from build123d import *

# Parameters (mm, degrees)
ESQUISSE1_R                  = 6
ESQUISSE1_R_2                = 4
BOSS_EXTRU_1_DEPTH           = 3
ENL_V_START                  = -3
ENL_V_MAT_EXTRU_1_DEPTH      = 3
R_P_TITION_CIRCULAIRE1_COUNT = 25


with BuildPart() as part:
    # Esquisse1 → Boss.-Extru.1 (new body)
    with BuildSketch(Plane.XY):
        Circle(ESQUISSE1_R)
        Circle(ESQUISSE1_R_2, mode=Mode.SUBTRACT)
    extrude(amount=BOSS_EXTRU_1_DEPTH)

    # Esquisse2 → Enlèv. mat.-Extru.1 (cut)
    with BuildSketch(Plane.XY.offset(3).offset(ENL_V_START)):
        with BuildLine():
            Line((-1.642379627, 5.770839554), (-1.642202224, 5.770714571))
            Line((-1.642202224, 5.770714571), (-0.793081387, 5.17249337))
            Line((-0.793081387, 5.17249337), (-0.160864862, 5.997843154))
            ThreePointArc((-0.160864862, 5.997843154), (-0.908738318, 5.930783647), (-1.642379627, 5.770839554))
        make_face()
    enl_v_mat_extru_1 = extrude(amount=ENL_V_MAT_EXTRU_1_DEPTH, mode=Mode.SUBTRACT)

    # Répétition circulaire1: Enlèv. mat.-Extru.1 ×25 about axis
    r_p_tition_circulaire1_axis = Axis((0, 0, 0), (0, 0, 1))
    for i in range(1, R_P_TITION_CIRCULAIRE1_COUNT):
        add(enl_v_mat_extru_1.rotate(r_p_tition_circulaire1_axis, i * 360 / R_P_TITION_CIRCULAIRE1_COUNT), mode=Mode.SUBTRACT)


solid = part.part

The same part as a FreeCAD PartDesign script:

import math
import FreeCAD as App
import Part
import Sketcher
from FreeCAD import Vector
Q = App.Units.Quantity

doc = App.newDocument("Part")
body = doc.addObject("PartDesign::Body", "Body")

# Sketch on XY plane
sketch1 = body.newObject("Sketcher::SketchObject", "Sketch")
sketch1.AttachmentSupport = (doc.getObject("XY_Plane"), [""])
sketch1.MapMode = "FlatFace"
sketch1.addGeometry(Part.Circle(Vector(0, 0, 0), Vector(0, 0, 1), 6), False)
sketch1.addGeometry(Part.Circle(Vector(0, 0, 0), Vector(0, 0, 1), 4), False)
sketch1.addConstraint(Sketcher.Constraint("Coincident", 0, 3, -1, 1))
sketch1.addConstraint(Sketcher.Constraint("Coincident", 1, 3, -1, 1))
sketch1.addConstraint(Sketcher.Constraint("Diameter", 0, Q("12 mm")))
sketch1.addConstraint(Sketcher.Constraint("Diameter", 1, Q("8 mm")))
pad1 = body.newObject("PartDesign::Pad", "Pad")
pad1.Profile = sketch1
pad1.Length = 3

# Sketch on XY plane
sketch2 = body.newObject("Sketcher::SketchObject", "Sketch001")
sketch2.AttachmentSupport = (doc.getObject("XY_Plane"), [""])
sketch2.MapMode = "FlatFace"
sketch2.addGeometry(Part.LineSegment(Vector(-1.64238, 5.77084, 0), Vector(-1.6422, 5.77071, 0)), False)
sketch2.addGeometry(Part.LineSegment(Vector(-1.6422, 5.77071, 0), Vector(-0.79308, 5.17249, 0)), False)
sketch2.addGeometry(Part.LineSegment(Vector(-0.79308, 5.17249, 0), Vector(-0.16086, 5.99784, 0)), False)
sketch2.addGeometry(Part.ArcOfCircle(Part.Circle(Vector(0, 0, 0), Vector(0, 0, 1), 6), math.radians(91.54), math.radians(105.89)), False)
sketch2.addConstraint(Sketcher.Constraint("Coincident", 0, 2, 1, 1))
sketch2.addConstraint(Sketcher.Constraint("Coincident", 1, 2, 2, 1))
sketch2.addConstraint(Sketcher.Constraint("Coincident", 2, 2, 3, 1))
sketch2.addConstraint(Sketcher.Constraint("Coincident", 3, 2, 0, 1))
sketch2.addConstraint(Sketcher.Constraint("Coincident", 3, 3, -1, 1))
sketch2.addConstraint(Sketcher.Constraint("Radius", 3, Q("6 mm")))
sketch2.addConstraint(Sketcher.Constraint("DistanceX", 3, 2, 1, 2, Q("0.849298 mm")))
sketch2.addConstraint(Sketcher.Constraint("Distance", 1, Q("1.038689 mm")))
sketch2.addConstraint(Sketcher.Constraint("DistanceX", 1, 2, -1, 1, Q("0.793081 mm")))
sketch2.addConstraint(Sketcher.Constraint("DistanceX", 0, 2, 1, 2, Q("0.849121 mm")))
sketch2.addConstraint(Sketcher.Constraint("DistanceY", 1, 2, 2, 2, Q("0.82535 mm")))
sketch2.addConstraint(Sketcher.Constraint("Distance", 0, Q("0.000217 mm")))
pocket1 = body.newObject("PartDesign::Pocket", "Pocket")
pocket1.Profile = sketch2
pocket1.Length = 3
pocket1.Reversed = True
doc.recompute()

polarpattern = body.newObject("PartDesign::PolarPattern", "PolarPattern")
polarpattern.Originals = [pocket1]
polarpattern.Axis = (doc.getObject("Z_Axis"), [""])
polarpattern.Angle = 360
polarpattern.Occurrences = 25
body.Tip = polarpattern

doc.recompute()
